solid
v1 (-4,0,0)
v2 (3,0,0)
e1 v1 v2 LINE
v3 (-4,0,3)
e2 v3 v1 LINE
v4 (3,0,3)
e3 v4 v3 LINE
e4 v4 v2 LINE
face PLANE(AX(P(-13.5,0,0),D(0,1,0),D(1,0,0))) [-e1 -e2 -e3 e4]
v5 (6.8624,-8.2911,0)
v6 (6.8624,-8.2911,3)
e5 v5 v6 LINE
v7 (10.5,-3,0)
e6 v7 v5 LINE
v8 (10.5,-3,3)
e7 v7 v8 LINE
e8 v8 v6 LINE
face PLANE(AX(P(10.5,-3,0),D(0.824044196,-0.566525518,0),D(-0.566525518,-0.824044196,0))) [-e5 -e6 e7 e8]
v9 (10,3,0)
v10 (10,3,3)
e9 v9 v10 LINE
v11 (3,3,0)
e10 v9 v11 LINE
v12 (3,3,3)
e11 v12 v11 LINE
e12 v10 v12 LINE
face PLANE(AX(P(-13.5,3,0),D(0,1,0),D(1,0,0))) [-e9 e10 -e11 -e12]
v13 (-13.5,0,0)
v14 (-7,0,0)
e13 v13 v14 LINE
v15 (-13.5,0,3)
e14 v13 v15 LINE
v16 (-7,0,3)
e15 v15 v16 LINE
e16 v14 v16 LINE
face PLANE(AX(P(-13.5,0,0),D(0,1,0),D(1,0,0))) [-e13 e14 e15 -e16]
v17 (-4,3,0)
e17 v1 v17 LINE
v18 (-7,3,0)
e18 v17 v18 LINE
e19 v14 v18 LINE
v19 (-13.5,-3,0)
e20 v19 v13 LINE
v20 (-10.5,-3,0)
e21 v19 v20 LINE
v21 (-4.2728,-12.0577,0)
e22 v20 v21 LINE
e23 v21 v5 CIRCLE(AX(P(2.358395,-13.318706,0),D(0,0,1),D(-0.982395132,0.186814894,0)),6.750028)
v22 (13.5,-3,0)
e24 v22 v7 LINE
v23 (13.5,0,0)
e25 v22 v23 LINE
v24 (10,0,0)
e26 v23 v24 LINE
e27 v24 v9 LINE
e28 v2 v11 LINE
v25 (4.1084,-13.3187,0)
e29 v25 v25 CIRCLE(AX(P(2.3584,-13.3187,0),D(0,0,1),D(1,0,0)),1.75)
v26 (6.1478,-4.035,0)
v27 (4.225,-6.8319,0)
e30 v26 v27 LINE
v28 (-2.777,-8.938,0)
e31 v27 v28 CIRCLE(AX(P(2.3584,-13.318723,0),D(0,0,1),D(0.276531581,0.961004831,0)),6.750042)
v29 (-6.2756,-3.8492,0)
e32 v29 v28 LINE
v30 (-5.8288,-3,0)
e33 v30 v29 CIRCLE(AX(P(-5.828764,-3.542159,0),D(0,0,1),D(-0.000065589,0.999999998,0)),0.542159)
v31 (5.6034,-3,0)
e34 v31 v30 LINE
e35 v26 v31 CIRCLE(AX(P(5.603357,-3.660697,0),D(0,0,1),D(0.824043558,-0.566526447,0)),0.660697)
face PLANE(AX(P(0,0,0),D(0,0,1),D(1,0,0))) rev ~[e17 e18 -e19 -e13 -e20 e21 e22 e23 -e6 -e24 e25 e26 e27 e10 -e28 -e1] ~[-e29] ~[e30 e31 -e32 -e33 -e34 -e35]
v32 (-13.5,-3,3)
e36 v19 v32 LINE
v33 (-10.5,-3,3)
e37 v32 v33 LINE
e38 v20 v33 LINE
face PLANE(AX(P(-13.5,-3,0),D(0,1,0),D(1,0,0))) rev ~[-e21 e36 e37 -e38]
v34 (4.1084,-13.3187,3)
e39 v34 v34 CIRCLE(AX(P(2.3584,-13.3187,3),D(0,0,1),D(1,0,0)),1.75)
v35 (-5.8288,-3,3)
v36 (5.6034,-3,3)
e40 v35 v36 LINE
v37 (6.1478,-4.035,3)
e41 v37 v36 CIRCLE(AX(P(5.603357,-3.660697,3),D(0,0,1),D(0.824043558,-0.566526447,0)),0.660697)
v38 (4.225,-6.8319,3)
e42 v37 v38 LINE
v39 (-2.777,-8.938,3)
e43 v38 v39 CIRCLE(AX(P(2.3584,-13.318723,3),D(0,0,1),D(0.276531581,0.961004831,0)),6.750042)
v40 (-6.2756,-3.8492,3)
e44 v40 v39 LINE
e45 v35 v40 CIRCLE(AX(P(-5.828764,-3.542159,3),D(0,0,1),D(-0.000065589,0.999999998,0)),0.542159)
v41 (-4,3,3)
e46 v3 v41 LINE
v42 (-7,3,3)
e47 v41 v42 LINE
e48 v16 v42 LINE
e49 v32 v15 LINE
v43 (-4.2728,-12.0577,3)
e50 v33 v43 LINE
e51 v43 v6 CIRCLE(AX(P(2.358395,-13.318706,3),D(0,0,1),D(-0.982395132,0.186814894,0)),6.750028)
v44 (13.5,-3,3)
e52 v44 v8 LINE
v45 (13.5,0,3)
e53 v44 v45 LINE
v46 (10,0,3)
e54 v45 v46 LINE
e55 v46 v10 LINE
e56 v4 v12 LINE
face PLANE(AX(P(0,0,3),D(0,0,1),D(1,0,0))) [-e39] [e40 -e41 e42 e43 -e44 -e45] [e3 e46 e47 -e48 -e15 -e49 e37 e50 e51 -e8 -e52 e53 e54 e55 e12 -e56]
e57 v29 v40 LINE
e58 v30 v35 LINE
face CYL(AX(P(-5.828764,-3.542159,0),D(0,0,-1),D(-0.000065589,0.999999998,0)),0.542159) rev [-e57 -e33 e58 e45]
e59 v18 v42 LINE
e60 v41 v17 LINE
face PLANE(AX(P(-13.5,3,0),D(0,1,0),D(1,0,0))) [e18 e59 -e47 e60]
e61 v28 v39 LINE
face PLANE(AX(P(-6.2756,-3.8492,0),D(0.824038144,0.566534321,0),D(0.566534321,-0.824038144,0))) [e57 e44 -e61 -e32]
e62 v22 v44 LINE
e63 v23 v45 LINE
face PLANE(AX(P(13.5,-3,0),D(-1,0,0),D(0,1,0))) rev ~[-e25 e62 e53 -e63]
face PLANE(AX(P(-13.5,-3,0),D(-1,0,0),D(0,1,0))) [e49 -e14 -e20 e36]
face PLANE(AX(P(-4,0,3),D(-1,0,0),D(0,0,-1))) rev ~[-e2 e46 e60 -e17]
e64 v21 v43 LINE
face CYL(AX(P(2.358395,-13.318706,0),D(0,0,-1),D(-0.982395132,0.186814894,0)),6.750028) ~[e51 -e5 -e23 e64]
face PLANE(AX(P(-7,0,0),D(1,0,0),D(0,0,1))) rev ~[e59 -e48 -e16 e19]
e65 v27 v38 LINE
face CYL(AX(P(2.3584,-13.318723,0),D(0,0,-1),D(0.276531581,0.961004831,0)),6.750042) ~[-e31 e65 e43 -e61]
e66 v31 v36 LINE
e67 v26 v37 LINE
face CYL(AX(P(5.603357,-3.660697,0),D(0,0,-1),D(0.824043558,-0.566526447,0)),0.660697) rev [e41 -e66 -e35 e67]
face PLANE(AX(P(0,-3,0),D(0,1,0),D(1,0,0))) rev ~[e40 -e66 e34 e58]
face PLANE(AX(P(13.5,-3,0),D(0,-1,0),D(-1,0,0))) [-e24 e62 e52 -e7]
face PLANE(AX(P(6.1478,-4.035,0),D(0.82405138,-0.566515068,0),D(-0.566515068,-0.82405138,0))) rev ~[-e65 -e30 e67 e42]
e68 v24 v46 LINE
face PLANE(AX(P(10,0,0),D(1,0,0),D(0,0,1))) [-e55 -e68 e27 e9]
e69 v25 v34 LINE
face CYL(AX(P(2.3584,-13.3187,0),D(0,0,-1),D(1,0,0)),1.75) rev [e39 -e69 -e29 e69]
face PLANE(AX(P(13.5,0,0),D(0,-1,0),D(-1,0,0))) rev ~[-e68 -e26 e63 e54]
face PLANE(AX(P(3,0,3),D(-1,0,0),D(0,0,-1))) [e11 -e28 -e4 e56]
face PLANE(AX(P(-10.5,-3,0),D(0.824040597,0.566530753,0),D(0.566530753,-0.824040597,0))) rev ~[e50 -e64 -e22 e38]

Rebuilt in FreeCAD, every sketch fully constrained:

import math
import FreeCAD as App
import Part
import Sketcher

V = App.Vector
Q = App.Units.Quantity


def add_polygon(sketch, points):
    """Adds a closed chain of lines whose ends are joined by coincident constraints."""
    first, n = sketch.GeometryCount, len(points)
    for a, b in zip(points, points[1:] + points[:1]):
        sketch.addGeometry(Part.LineSegment(App.Vector(*a, 0), App.Vector(*b, 0)), False)
    for i in range(n):
        sketch.addConstraint(Sketcher.Constraint("Coincident", first + i, 2, first + (i + 1) % n, 1))

doc = App.newDocument("Part")
body = doc.addObject("PartDesign::Body", "Body")

sketch1 = body.newObject("Sketcher::SketchObject", "Sketch")
sketch1.AttachmentSupport = (doc.getObject("XY_Plane"), [""])
sketch1.MapMode = "FlatFace"
sketch1.addGeometry([
    Part.LineSegment(V(13.5, 0, 0), V(-13.5, 0, 0)),
    Part.LineSegment(V(-13.5, 0, 0), V(-13.5, -3, 0)),
    Part.LineSegment(V(-13.5, -3, 0), V(-10.5, -3, 0)),
    Part.LineSegment(V(-10.5, -3, 0), V(-4.2728, -12.0577, 0)),
    Part.ArcOfCircle(Part.Circle(V(2.3584, -13.3187, 0), V(0, 0, 1), 6.750032), math.radians(169.233093), math.radians(408.144273)),
    Part.LineSegment(V(6.8624, -8.2911, 0), V(10.5, -3, 0)),
    Part.LineSegment(V(10.5, -3, 0), V(13.5, -3, 0)),
    Part.LineSegment(V(13.5, -3, 0), V(13.5, 0, 0)),
    Part.Circle(V(2.3584, -13.3187, 0), V(0, 0, 1), 1.75),
    Part.ArcOfCircle(Part.Circle(V(-5.8288, -3.5421, 0), V(0, 0, 1), 0.5421), math.radians(90), math.radians(214.501992)),
    Part.LineSegment(V(-5.8288, -3, 0), V(5.6034, -3, 0)),
    Part.ArcOfCircle(Part.Circle(V(5.6034, -3.6607, 0), V(0, 0, 1), 0.66066), math.radians(-34.51031), math.radians(90)),
    Part.LineSegment(V(6.1478, -4.035, 0), V(4.225, -6.8319, 0)),
    Part.ArcOfCircle(Part.Circle(V(2.3584, -13.3187, 0), V(0, 0, 1), 6.750032), math.radians(73.946637), math.radians(139.534505)),
    Part.LineSegment(V(-2.777, -8.938, 0), V(-6.2756, -3.8492, 0)),
], False)
sketch1.addConstraint([
    Sketcher.Constraint("Coincident", 0, 2, 1, 1),
    Sketcher.Constraint("Coincident", 1, 2, 2, 1),
    Sketcher.Constraint("Coincident", 2, 2, 3, 1),
    Sketcher.Constraint("Coincident", 3, 2, 4, 1),
    Sketcher.Constraint("Coincident", 4, 2, 5, 1),
    Sketcher.Constraint("Coincident", 5, 2, 6, 1),
    Sketcher.Constraint("Coincident", 6, 2, 7, 1),
    Sketcher.Constraint("Coincident", 7, 2, 0, 1),
    Sketcher.Constraint("Coincident", 9, 1, 10, 1),
    Sketcher.Constraint("Coincident", 10, 2, 11, 2),
    Sketcher.Constraint("Coincident", 11, 1, 12, 1),
    Sketcher.Constraint("Coincident", 12, 2, 13, 1),
    Sketcher.Constraint("Coincident", 13, 2, 14, 1),
    Sketcher.Constraint("Coincident", 14, 2, 9, 2),
    Sketcher.Constraint("Horizontal", 0),
    Sketcher.Constraint("Vertical", 1),
    Sketcher.Constraint("Horizontal", 2),
    Sketcher.Constraint("Horizontal", 6),
    Sketcher.Constraint("Vertical", 7),
    Sketcher.Constraint("Horizontal", 10),
    Sketcher.Constraint("Coincident", 8, 3, 4, 3),
    Sketcher.Constraint("Coincident", 13, 3, 4, 3),
    Sketcher.Constraint("PointOnObject", 0, 2, -1),
    Sketcher.Constraint("Diameter", 8, Q("0.1378 in")),
    Sketcher.Constraint("DistanceX", 2, 1, 2, 2, Q("0.1181 in")),
    Sketcher.Constraint("DistanceX", 6, 1, 6, 2, Q("0.1181 in")),
    Sketcher.Constraint("DistanceY", 1, 2, 1, 1, Q("0.1181 in")),
    Sketcher.Constraint("DistanceY", 7, 1, 7, 2, Q("0.1181 in")),
    Sketcher.Constraint("Radius", 11, Q("0.026 in")),
    Sketcher.Constraint("DistanceY", 9, 1, -1, 1, Q("0.1181 in")),
    Sketcher.Constraint("DistanceX", 0, 2, 0, 1, Q("1.063 in")),
    Sketcher.Constraint("Radius", 4, Q("6.75 mm")),
    Sketcher.Constraint("Radius", 9, Q("0.542 mm")),
    Sketcher.Constraint("Radius", 13, Q("6.75 mm")),
    Sketcher.Constraint("DistanceY", 4, 3, 1, 2, Q("0.406248 in")),
    Sketcher.Constraint("DistanceX", 2, 2, 11, 3, Q("0.634 in")),
    Sketcher.Constraint("Distance", 5, Q("0.2528 in")),
    Sketcher.Constraint("DistanceX", 10, 1, 10, 2, Q("11.4322 mm")),
    Sketcher.Constraint("DistanceX", -1, 1, 11, 3, Q("0.2206 in")),
    Sketcher.Constraint("DistanceX", -1, 1, 10, 2, Q("0.2206 in")),
    Sketcher.Constraint("DistanceY", 13, 2, -1, 1, Q("0.3519 in")),
    Sketcher.Constraint("DistanceX", 2, 2, 9, 3, Q("0.1839 in")),
    Sketcher.Constraint("DistanceY", 3, 2, 2, 2, Q("0.3566 in")),
    Sketcher.Constraint("DistanceY", 4, 2, 11, 3, Q("0.1823 in")),
    Sketcher.Constraint("DistanceX", 12, 2, 11, 1, Q("0.0757 in")),
    Sketcher.Constraint("DistanceX", 4, 3, 12, 2, Q("0.0735 in")),
    Sketcher.Constraint("DistanceX", 14, 2, 9, 3, Q("0.0176 in")),
])
pad1 = body.newObject("PartDesign::Pad", "Pad")
pad1.Profile = sketch1
pad1.Length = Q("0.1181102 in")

sketch2 = body.newObject("Sketcher::SketchObject", "Sketch001")
sketch2.AttachmentSupport = (doc.getObject("XZ_Plane"), [""])
sketch2.MapMode = "FlatFace"
add_polygon(sketch2, [(10, 3), (10, 0), (3, 0), (3, 3)])
add_polygon(sketch2, [(-4, 3), (-4, 0), (-7, 0), (-7, 3)])
sketch2.addConstraint([
    Sketcher.Constraint("Vertical", 0),
    Sketcher.Constraint("Horizontal", 1),
    Sketcher.Constraint("Vertical", 2),
    Sketcher.Constraint("Horizontal", 3),
    Sketcher.Constraint("Vertical", 4),
    Sketcher.Constraint("Horizontal", 5),
    Sketcher.Constraint("Vertical", 6),
    Sketcher.Constraint("Horizontal", 7),
    Sketcher.Constraint("PointOnObject", 0, 2, -1),
    Sketcher.Constraint("PointOnObject", 4, 2, -1),
    Sketcher.Constraint("Horizontal", 3, 2, 6, 2),
    Sketcher.Constraint("Equal", 7, 0),
    Sketcher.Constraint("DistanceX", 1, 2, 1, 1, Q("0.2756 in")),
    Sketcher.Constraint("DistanceX", 5, 2, 5, 1, Q("0.1181 in")),
    Sketcher.Constraint("DistanceX", -1, 1, 1, 2, Q("0.1181 in")),
    Sketcher.Constraint("DistanceX", 5, 2, -1, 1, Q("0.2756 in")),
])
pad2 = body.newObject("PartDesign::Pad", "Pad001")
pad2.Profile = sketch2
pad2.Length = Q("0.1181102 in")
pad2.Reversed = True

doc.recompute()
